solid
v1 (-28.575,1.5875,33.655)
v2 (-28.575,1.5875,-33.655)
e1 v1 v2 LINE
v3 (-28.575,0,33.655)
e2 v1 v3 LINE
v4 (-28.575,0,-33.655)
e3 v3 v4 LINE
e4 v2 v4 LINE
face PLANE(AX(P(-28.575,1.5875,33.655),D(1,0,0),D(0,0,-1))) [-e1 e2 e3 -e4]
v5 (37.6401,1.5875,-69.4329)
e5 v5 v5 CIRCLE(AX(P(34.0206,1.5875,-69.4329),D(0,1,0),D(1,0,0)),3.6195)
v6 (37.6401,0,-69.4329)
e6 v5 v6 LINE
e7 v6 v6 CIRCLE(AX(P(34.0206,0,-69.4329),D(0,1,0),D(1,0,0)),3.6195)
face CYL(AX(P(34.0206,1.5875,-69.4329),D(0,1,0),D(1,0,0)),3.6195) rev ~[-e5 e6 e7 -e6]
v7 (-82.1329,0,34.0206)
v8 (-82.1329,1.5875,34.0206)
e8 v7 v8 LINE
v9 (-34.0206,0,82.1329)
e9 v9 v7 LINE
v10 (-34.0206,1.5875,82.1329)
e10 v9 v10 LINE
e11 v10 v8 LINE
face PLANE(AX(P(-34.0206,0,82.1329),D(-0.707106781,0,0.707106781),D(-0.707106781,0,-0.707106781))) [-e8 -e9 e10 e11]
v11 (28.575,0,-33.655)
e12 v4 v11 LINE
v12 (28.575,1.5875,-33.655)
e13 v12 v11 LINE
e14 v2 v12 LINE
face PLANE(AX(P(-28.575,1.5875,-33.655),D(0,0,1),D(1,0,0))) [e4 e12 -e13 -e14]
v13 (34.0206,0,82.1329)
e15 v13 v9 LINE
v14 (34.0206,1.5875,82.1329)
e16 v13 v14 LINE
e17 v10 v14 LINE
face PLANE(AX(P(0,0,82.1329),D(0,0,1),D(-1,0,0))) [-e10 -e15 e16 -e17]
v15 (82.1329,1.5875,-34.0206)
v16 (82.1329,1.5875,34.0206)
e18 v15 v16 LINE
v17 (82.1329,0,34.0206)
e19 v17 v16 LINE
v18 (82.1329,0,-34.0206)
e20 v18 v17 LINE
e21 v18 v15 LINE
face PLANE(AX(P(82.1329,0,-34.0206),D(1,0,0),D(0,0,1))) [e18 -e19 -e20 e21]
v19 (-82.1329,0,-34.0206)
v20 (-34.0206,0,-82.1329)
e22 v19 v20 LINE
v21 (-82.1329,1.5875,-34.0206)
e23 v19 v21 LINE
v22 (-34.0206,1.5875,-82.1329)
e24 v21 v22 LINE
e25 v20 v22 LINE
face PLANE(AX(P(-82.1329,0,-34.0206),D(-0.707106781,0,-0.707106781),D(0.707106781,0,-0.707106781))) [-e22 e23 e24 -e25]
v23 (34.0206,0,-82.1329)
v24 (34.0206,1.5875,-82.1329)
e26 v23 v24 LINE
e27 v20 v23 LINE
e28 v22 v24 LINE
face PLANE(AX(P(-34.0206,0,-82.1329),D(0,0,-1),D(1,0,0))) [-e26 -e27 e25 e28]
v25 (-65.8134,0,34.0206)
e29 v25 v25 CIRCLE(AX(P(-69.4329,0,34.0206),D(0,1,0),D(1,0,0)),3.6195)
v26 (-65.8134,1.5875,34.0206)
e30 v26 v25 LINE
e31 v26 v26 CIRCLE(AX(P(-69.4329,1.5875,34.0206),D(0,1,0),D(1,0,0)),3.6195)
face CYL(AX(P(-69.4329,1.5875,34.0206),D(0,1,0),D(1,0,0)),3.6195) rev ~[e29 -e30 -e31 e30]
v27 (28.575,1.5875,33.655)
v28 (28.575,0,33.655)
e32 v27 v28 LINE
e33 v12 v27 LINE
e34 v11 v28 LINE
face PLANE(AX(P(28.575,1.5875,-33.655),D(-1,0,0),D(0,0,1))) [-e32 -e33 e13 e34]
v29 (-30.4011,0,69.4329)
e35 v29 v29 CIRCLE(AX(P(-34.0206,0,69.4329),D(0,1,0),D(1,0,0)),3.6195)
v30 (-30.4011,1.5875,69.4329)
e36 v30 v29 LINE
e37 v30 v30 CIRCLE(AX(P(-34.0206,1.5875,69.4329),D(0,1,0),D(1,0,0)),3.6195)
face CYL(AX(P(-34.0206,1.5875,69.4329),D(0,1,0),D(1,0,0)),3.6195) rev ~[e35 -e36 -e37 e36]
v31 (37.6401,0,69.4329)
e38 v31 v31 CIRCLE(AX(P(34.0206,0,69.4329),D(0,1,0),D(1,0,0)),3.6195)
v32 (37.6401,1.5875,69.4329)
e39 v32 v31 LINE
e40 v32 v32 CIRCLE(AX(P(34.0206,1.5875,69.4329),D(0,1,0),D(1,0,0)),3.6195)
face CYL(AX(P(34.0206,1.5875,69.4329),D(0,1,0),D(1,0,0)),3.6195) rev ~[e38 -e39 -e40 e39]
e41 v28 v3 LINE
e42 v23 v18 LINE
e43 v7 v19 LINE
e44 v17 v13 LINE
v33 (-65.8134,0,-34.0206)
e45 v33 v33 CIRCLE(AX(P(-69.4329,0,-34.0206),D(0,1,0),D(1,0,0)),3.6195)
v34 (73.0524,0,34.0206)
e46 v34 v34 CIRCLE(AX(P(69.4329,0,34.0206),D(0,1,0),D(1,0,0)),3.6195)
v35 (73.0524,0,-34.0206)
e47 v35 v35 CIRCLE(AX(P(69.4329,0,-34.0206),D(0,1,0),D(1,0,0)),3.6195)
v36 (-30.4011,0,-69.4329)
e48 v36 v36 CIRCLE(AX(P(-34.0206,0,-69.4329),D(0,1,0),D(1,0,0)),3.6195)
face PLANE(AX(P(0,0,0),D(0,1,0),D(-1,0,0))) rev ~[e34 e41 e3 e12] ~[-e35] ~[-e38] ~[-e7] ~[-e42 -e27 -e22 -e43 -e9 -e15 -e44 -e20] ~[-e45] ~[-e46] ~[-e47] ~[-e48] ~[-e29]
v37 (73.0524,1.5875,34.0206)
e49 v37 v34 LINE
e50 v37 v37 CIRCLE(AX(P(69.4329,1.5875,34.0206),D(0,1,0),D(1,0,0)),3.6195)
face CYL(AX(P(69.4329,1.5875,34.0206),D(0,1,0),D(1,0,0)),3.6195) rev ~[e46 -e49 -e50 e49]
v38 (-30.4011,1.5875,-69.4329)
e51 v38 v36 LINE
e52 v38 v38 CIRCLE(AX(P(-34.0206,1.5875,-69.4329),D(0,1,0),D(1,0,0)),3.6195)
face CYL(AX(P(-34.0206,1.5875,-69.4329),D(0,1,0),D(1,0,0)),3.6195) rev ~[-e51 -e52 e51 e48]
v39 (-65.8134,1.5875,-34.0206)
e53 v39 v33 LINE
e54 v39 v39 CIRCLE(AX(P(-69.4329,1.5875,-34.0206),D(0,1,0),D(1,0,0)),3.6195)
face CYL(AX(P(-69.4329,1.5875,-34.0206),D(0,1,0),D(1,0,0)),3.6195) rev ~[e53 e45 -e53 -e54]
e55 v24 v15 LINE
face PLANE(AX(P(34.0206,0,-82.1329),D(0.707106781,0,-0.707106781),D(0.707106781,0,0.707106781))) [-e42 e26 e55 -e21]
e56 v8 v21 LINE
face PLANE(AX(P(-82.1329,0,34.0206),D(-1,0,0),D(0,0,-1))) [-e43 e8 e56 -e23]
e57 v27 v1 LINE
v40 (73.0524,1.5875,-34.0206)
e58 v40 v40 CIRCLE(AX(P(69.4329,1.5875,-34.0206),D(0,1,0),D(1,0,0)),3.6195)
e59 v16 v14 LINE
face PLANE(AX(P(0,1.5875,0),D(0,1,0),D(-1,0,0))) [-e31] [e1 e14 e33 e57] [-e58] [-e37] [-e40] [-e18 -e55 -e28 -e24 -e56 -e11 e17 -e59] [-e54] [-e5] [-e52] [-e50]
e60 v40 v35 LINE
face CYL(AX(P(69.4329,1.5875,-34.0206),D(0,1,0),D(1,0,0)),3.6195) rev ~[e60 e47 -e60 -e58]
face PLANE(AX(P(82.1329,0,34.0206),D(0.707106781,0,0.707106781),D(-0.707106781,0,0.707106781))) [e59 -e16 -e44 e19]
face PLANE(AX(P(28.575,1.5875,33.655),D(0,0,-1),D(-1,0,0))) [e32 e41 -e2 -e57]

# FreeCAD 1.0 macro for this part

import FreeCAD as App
import Part
import Sketcher
from FreeCAD import Vector
Q = App.Units.Quantity


def add_polygon(sketch, points):
    """Adds a closed chain of lines whose ends are joined by coincident constraints."""
    first, n = sketch.GeometryCount, len(points)
    for a, b in zip(points, points[1:] + points[:1]):
        sketch.addGeometry(Part.LineSegment(App.Vector(*a, 0), App.Vector(*b, 0)), False)
    for i in range(n):
        sketch.addConstraint(Sketcher.Constraint("Coincident", first + i, 2, first + (i + 1) % n, 1))

doc = App.newDocument("Part")
body = doc.addObject("PartDesign::Body", "Body")

# Sketch on XZ plane
sketch1 = doc.addObject("Sketcher::SketchObject", "Sketch")
body.addObject(sketch1)
sketch1.AttachmentSupport = (doc.XZ_Plane, [""])
sketch1.MapMode = "FlatFace"
add_polygon(sketch1, [(-82, -34), (-82, 34), (-34, 82), (34, 82), (82, 34), (82, -34), (34, -82), (-34, -82)])  # lines 0-7
sketch1.addConstraint([
    Sketcher.Constraint("Vertical", 0),
    Sketcher.Constraint("Horizontal", 2),
    Sketcher.Constraint("Vertical", 4),
    Sketcher.Constraint("Horizontal", 6),
    Sketcher.Constraint("Symmetric", 0, 2, 4, 2, -1, 1),
    Sketcher.Constraint("Symmetric", 1, 2, 5, 2, -1, 1),
    Sketcher.Constraint("Perpendicular", 1, 3),
    Sketcher.Constraint("Perpendicular", 5, 7),
    Sketcher.Constraint("Horizontal", 0, 2, 3, 2),
    Sketcher.Constraint("Horizontal", 4, 2, 7, 2),
    Sketcher.Constraint("Vertical", 2, 2, 5, 2),
    Sketcher.Constraint("Equal", 6, 0),
    Sketcher.Constraint("DistanceX", 0, 2, 3, 2, 164.2658),
    Sketcher.Constraint("DistanceX", 2, 1, 2, 2, 68.0412),
])
pad1 = doc.addObject("PartDesign::Pad", "Pad")
body.addObject(pad1)
pad1.Profile = sketch1
pad1.Length = Q("0.0625 in")
pad1.Reversed = True

# Sketch on XZ plane
sketch2 = doc.addObject("Sketcher::SketchObject", "Sketch001")
body.addObject(sketch2)
sketch2.AttachmentSupport = (doc.XZ_Plane, [""])
sketch2.MapMode = "FlatFace"
sketch2.AttachmentOffset = App.Placement(Vector(0, 0, -0.0625 * 25.4), App.Rotation())
add_polygon(sketch2, [(-29, 34), (29, 34), (29, -34), (-29, -34)])  # lines 0-3
sketch2.addConstraint([
    Sketcher.Constraint("Horizontal", 0),
    Sketcher.Constraint("Vertical", 1),
    Sketcher.Constraint("Horizontal", 2),
    Sketcher.Constraint("Vertical", 3),
    Sketcher.Constraint("Symmetric", 0, 2, 2, 2, -1, 1),
    Sketcher.Constraint("DistanceX", 0, 1, 0, 2, Q("2.25 in")),
    Sketcher.Constraint("DistanceY", 1, 2, 1, 1, Q("2.65 in")),
])
pocket1 = doc.addObject("PartDesign::Pocket", "Pocket")
body.addObject(pocket1)
pocket1.Profile = sketch2
pocket1.Type = "ThroughAll"
pocket1.Reversed = True

# Sketch on XZ plane
sketch3 = doc.addObject("Sketcher::SketchObject", "Sketch002")
body.addObject(sketch3)
sketch3.AttachmentSupport = (doc.XZ_Plane, [""])
sketch3.MapMode = "FlatFace"
sketch3.AttachmentOffset = App.Placement(Vector(0, 0, -0.0625 * 25.4), App.Rotation())
sketch3.addGeometry([
    Part.Circle(Vector(-69.4, 34, 0), Vector(0, 0, 1), 3.6),  # 0
    Part.Circle(Vector(-69.4, -34, 0), Vector(0, 0, 1), 3.6),  # 1
    Part.Circle(Vector(-34, 69.4, 0), Vector(0, 0, 1), 3.6),  # 2
    Part.Circle(Vector(34, 69.4, 0), Vector(0, 0, 1), 3.6),  # 3
    Part.Circle(Vector(69.4, 34, 0), Vector(0, 0, 1), 3.6),  # 4
    Part.Circle(Vector(69.4, -34, 0), Vector(0, 0, 1), 3.6),  # 5
    Part.Circle(Vector(34, -69.4, 0), Vector(0, 0, 1), 3.6),  # 6
    Part.Circle(Vector(-34, -69.4, 0), Vector(0, 0, 1), 3.6),  # 7
], False)
sketch3.addConstraint([
    Sketcher.Constraint("Equal", 0, 1),
    Sketcher.Constraint("Equal", 1, 2),
    Sketcher.Constraint("Equal", 2, 3),
    Sketcher.Constraint("Equal", 3, 4),
    Sketcher.Constraint("Equal", 4, 5),
    Sketcher.Constraint("Equal", 5, 6),
    Sketcher.Constraint("Equal", 6, 7),
    Sketcher.Constraint("Symmetric", 1, 3, 4, 3, -1, 1),
    Sketcher.Constraint("Symmetric", 0, 3, 5, 3, -1, 1),
    Sketcher.Constraint("Symmetric", 2, 3, 6, 3, -1, 1),
    Sketcher.Constraint("Symmetric", 3, 3, 7, 3, -1, 1),
    Sketcher.Constraint("Symmetric", 2, 3, 3, 3, -2),
    Sketcher.Constraint("Symmetric", 0, 3, 4, 3, -2),
    Sketcher.Constraint("Diameter", 0, Q("0.285 in")),
    Sketcher.Constraint("DistanceY", -1, 1, 0, 3, Q("1.3394 in")),
    Sketcher.Constraint("DistanceX", 2, 3, -1, 1, Q("1.3394 in")),
    Sketcher.Constraint("DistanceX", 0, 3, -1, 1, 69.433),
    Sketcher.Constraint("DistanceY", -1, 1, 2, 3, 69.433),
])
pocket2 = doc.addObject("PartDesign::Pocket", "Pocket001")
body.addObject(pocket2)
pocket2.Profile = sketch3
pocket2.Type = "ThroughAll"
pocket2.Reversed = True

doc.recompute()
